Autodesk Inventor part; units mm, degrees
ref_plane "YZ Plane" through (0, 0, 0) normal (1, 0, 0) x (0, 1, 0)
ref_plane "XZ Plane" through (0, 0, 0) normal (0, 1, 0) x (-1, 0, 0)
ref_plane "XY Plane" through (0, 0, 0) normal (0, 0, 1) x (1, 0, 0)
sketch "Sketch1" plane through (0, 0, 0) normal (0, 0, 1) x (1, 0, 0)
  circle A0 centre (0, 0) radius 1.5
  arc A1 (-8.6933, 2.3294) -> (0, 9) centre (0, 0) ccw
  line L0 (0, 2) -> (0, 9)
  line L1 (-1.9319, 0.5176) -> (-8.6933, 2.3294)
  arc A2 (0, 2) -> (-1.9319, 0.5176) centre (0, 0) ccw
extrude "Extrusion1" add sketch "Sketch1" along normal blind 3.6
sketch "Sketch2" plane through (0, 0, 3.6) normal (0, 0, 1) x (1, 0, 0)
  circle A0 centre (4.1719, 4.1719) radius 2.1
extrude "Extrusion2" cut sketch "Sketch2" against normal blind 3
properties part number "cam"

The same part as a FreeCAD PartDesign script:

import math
import FreeCAD as App
import Part
import Sketcher
from FreeCAD import Vector
Q = App.Units.Quantity

doc = App.newDocument("Part")
body = doc.addObject("PartDesign::Body", "Body")

# Sketch on XY plane
sketch1 = body.newObject("Sketcher::SketchObject", "Sketch")
sketch1.AttachmentSupport = (doc.getObject("XY_Plane"), [""])
sketch1.MapMode = "FlatFace"
sketch1.addGeometry([
    Part.LineSegment(Vector(-1.9319, 0.5176, 0), Vector(-8.6933, 2.3294, 0)),  # 0
    Part.ArcOfCircle(Part.Circle(Vector(0, 0, 0), Vector(0, 0, 1), 8.999976), math.radians(164.999771), math.radians(450)),  # 1
    Part.LineSegment(Vector(0, 9, 0), Vector(0, 2, 0)),  # 2
    Part.ArcOfCircle(Part.Circle(Vector(0, 0, 0), Vector(0, 0, 1), 2), math.radians(90), math.radians(165.001412)),  # 3
    Part.Circle(Vector(0, 0, 0), Vector(0, 0, 1), 1.5),  # 4
], False)
sketch1.addConstraint([
    Sketcher.Constraint("Coincident", 0, 2, 1, 1),
    Sketcher.Constraint("Coincident", 1, 2, 2, 1),
    Sketcher.Constraint("Coincident", 2, 2, 3, 1),
    Sketcher.Constraint("Coincident", 3, 2, 0, 1),
    Sketcher.Constraint("Vertical", 2),
    Sketcher.Constraint("Coincident", 1, 3, -1, 1),
    Sketcher.Constraint("Coincident", 3, 3, -1, 1),
    Sketcher.Constraint("Coincident", 4, 3, -1, 1),
    Sketcher.Constraint("PointOnObject", 1, 2, -2),
    Sketcher.Constraint("Diameter", 4, 3.0),
    Sketcher.Constraint("Radius", 1, 9.0),
    Sketcher.Constraint("Radius", 3, 2.0),
    Sketcher.Constraint("Angle", 0, Q("164.9993 deg")),
    Sketcher.Constraint("DistanceX", 0, 2, -1, 1, 8.6933),
])
pad1 = body.newObject("PartDesign::Pad", "Pad")
pad1.Profile = sketch1
pad1.Length = 3.6

# Sketch on XY plane
sketch2 = body.newObject("Sketcher::SketchObject", "Sketch001")
sketch2.AttachmentSupport = (doc.getObject("XY_Plane"), [""])
sketch2.MapMode = "FlatFace"
sketch2.AttachmentOffset = App.Placement(Vector(0, 0, 3.6), App.Rotation())
sketch2.addGeometry(Part.Circle(Vector(4.1719, 4.1719, 0), Vector(0, 0, 1), 2.1), False)
sketch2.addConstraint([
    Sketcher.Constraint("Diameter", 0, 4.2),
    Sketcher.Constraint("DistanceX", -1, 1, 0, 3, 4.172),
    Sketcher.Constraint("DistanceY", -1, 1, 0, 3, 4.172),
])
pocket1 = body.newObject("PartDesign::Pocket", "Pocket")
pocket1.Profile = sketch2
pocket1.Length = 3

doc.recompute()
